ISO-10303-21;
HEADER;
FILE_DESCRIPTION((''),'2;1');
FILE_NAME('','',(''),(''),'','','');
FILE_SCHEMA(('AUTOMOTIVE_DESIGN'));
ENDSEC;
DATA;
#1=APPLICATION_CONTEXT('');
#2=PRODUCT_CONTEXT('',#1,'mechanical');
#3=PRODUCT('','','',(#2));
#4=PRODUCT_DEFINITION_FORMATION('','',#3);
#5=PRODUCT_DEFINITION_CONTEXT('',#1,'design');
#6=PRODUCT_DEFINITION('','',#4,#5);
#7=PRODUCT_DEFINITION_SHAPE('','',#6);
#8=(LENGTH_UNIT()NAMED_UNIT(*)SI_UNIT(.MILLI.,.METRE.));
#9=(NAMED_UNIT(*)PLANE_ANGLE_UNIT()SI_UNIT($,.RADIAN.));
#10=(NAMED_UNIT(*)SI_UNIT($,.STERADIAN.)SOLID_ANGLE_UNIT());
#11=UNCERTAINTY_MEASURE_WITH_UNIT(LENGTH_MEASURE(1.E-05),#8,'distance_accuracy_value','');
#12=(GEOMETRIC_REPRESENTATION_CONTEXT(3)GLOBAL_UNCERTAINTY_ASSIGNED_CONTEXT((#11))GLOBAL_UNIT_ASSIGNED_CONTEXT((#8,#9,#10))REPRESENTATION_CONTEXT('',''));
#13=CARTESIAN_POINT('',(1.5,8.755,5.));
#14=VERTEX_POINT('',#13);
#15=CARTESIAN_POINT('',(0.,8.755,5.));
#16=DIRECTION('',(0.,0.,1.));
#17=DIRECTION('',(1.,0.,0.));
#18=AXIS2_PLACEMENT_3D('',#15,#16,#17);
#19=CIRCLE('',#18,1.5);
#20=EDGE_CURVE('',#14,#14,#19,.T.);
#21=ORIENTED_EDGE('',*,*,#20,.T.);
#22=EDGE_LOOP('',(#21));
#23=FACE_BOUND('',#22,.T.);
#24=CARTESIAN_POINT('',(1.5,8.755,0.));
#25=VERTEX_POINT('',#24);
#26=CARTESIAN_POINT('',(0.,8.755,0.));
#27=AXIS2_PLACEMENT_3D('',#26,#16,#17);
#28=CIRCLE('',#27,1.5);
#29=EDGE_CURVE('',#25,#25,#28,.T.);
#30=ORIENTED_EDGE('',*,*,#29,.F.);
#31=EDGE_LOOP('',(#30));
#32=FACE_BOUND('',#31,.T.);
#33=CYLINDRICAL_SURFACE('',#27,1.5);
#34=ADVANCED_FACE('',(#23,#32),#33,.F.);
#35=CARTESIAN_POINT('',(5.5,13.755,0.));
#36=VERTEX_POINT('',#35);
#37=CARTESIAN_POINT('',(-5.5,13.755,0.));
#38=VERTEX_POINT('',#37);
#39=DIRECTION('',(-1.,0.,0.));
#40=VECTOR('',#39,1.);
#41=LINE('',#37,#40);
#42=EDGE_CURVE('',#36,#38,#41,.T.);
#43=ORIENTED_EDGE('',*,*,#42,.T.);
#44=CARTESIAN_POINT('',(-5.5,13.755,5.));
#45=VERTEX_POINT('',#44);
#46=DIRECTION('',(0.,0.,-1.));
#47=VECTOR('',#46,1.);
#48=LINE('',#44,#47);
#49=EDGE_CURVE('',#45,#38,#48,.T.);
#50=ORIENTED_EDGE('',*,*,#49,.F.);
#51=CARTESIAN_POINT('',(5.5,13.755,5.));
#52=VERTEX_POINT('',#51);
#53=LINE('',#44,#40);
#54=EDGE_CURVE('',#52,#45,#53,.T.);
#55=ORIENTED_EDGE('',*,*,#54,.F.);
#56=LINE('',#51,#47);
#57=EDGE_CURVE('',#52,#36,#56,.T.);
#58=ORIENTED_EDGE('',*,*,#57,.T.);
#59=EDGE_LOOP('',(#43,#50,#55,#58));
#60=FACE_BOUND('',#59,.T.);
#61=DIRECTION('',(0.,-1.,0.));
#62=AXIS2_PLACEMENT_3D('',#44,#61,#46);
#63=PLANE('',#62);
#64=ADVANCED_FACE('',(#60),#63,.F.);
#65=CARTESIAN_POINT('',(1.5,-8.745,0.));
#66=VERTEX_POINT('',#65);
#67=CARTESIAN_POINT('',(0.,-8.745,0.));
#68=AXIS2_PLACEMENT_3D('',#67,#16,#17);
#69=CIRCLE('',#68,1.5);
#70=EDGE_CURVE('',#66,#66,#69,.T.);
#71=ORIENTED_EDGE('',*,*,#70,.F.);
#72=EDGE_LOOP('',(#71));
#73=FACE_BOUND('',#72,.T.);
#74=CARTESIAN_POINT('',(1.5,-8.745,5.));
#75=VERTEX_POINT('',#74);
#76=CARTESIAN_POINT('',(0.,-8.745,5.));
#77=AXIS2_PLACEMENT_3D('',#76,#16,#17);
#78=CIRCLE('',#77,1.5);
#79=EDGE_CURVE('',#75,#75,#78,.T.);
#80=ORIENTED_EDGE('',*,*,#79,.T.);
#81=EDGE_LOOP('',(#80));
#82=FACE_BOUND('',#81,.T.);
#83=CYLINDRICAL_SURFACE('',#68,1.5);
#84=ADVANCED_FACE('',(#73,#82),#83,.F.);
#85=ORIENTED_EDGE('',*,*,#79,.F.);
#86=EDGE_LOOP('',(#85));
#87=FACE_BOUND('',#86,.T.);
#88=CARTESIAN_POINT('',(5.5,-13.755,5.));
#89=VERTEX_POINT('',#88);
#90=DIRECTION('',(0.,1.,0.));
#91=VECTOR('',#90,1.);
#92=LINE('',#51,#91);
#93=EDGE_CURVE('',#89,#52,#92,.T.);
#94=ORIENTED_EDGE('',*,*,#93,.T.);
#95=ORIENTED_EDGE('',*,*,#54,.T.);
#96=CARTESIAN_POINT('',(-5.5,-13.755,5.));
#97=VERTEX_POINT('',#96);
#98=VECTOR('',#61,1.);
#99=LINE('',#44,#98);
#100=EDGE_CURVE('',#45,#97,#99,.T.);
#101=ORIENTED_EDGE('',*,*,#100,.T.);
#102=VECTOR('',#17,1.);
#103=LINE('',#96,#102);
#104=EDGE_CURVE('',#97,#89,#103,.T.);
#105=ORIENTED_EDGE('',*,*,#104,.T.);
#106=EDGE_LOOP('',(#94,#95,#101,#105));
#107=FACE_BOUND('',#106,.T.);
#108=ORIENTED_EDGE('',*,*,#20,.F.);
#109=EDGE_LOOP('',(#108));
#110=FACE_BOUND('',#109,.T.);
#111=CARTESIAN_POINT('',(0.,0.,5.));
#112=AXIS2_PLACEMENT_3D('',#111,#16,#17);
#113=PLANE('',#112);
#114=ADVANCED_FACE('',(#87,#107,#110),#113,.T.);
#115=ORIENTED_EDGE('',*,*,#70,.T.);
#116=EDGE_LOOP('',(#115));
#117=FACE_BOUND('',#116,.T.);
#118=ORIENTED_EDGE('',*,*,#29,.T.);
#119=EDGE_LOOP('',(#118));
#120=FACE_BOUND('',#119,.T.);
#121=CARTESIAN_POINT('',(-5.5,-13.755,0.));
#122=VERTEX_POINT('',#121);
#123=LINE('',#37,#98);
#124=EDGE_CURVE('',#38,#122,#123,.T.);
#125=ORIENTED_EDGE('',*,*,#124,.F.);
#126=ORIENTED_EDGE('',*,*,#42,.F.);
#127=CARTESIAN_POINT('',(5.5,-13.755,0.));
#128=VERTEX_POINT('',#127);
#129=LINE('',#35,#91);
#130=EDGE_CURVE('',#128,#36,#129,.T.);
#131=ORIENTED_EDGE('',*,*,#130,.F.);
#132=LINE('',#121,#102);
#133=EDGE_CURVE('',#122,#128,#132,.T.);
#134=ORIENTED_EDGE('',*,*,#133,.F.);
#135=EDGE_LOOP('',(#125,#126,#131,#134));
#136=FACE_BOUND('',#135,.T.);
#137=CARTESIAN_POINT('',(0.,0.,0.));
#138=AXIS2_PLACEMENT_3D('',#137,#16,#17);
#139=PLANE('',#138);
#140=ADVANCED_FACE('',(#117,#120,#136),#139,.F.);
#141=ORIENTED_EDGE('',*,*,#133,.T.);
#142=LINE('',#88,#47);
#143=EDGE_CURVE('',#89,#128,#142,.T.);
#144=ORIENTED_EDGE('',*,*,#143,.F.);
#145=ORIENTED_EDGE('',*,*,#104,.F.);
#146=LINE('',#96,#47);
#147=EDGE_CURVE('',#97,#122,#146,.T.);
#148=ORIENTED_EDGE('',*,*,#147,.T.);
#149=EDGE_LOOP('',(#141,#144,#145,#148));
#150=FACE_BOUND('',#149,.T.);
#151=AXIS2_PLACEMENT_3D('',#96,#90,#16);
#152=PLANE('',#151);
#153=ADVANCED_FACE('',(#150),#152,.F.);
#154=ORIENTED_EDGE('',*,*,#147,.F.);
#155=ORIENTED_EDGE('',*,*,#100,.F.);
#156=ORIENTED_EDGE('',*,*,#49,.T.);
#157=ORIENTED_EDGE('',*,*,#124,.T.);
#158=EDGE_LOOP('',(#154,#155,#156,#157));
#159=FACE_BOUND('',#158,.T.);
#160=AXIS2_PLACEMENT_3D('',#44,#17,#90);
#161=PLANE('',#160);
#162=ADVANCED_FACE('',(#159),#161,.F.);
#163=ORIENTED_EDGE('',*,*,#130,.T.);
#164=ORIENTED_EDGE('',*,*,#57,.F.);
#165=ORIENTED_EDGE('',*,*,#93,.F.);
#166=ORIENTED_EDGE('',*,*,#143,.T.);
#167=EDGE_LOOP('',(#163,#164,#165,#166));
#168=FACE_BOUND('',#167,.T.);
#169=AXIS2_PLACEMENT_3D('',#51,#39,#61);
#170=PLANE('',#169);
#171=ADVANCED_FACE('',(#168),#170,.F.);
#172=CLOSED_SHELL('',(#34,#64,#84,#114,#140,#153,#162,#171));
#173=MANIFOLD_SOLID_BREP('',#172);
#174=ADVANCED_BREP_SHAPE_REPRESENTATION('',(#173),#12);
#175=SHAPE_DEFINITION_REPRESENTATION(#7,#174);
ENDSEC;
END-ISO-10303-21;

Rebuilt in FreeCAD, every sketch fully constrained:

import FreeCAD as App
import Part
import Sketcher


def add_polygon(sketch, points):
    """Adds a closed chain of lines whose ends are joined by coincident constraints."""
    first, n = sketch.GeometryCount, len(points)
    for a, b in zip(points, points[1:] + points[:1]):
        sketch.addGeometry(Part.LineSegment(App.Vector(*a, 0), App.Vector(*b, 0)), False)
    for i in range(n):
        sketch.addConstraint(Sketcher.Constraint("Coincident", first + i, 2, first + (i + 1) % n, 1))

doc = App.newDocument("Part")
body = doc.addObject("PartDesign::Body", "Body")

sketch1 = body.newObject("Sketcher::SketchObject", "Sketch")
sketch1.AttachmentSupport = (doc.getObject("XY_Plane"), [""])
sketch1.MapMode = "FlatFace"
add_polygon(sketch1, [(-6, 14), (-6, -14), (6, -14), (6, 14)])
sketch1.addConstraint(Sketcher.Constraint("Vertical", 0))
sketch1.addConstraint(Sketcher.Constraint("Horizontal", 1))
sketch1.addConstraint(Sketcher.Constraint("Vertical", 2))
sketch1.addConstraint(Sketcher.Constraint("Horizontal", 3))
sketch1.addConstraint(Sketcher.Constraint("Symmetric", 0, 2, 2, 2, -1, 1))
sketch1.addConstraint(Sketcher.Constraint("DistanceX", 1, 1, 1, 2, 11.0))
sketch1.addConstraint(Sketcher.Constraint("DistanceY", 0, 2, 0, 1, 27.51))
pad1 = body.newObject("PartDesign::Pad", "Pad")
pad1.Profile = sketch1
pad1.Length = 5

sketch2 = body.newObject("Sketcher::SketchObject", "Sketch001")
sketch2.AttachmentSupport = (doc.getObject("XY_Plane"), [""])
sketch2.MapMode = "FlatFace"
sketch2.AttachmentOffset = App.Placement(App.Vector(0, 0, 5), App.Rotation())
sketch2.addGeometry(Part.Circle(App.Vector(0, 8.8, 0), App.Vector(0, 0, 1), 1.5), False)
sketch2.addGeometry(Part.Circle(App.Vector(0, -8.7, 0), App.Vector(0, 0, 1), 1.5), False)
sketch2.addConstraint(Sketcher.Constraint("Equal", 0, 1))
sketch2.addConstraint(Sketcher.Constraint("PointOnObject", 0, 3, -2))
sketch2.addConstraint(Sketcher.Constraint("PointOnObject", 1, 3, -2))
sketch2.addConstraint(Sketcher.Constraint("Diameter", 0, 3.0))
sketch2.addConstraint(Sketcher.Constraint("DistanceY", 1, 3, 0, 3, 17.5))
sketch2.addConstraint(Sketcher.Constraint("DistanceY", -1, 1, 0, 3, 8.755))
pocket1 = body.newObject("PartDesign::Pocket", "Pocket")
pocket1.Profile = sketch2
pocket1.Length = 5

doc.recompute()
